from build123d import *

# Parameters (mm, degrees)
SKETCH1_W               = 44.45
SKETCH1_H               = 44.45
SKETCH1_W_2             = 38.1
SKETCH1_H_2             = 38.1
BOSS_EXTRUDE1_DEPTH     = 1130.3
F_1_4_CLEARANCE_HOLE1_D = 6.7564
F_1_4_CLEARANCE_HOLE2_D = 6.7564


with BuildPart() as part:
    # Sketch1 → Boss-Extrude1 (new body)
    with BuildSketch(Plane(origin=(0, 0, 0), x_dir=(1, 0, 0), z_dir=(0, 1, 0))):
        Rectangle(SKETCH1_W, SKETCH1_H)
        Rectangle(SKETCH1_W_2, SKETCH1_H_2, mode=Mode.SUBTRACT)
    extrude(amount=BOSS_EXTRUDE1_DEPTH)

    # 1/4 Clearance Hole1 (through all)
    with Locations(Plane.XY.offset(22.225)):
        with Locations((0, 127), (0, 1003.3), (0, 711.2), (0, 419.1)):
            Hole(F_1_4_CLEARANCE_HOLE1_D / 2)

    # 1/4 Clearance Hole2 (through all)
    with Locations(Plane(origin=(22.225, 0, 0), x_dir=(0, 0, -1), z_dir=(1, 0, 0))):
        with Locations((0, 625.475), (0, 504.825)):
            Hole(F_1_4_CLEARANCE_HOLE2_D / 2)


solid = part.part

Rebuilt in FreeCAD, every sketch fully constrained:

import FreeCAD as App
import Part
import Sketcher
from FreeCAD import Vector
Q = App.Units.Quantity

doc = App.newDocument("Part")
body = doc.addObject("PartDesign::Body", "Body")

# Sketch on XZ plane
sketch1 = body.newObject("Sketcher::SketchObject", "Sketch")
sketch1.AttachmentSupport = (doc.getObject("XZ_Plane"), [""])
sketch1.MapMode = "FlatFace"
sketch1.addGeometry(Part.LineSegment(Vector(-22, -22, 0), Vector(-22, 22, 0)), False)
sketch1.addGeometry(Part.LineSegment(Vector(-22, 22, 0), Vector(22, 22, 0)), False)
sketch1.addGeometry(Part.LineSegment(Vector(22, 22, 0), Vector(22, -22, 0)), False)
sketch1.addGeometry(Part.LineSegment(Vector(22, -22, 0), Vector(-22, -22, 0)), False)
sketch1.addGeometry(Part.LineSegment(Vector(19, 19, 0), Vector(-19, 19, 0)), False)
sketch1.addGeometry(Part.LineSegment(Vector(-19, 19, 0), Vector(-19, -19, 0)), False)
sketch1.addGeometry(Part.LineSegment(Vector(-19, -19, 0), Vector(19, -19, 0)), False)
sketch1.addGeometry(Part.LineSegment(Vector(19, -19, 0), Vector(19, 19, 0)), False)
sketch1.addConstraint(Sketcher.Constraint("Coincident", 0, 2, 1, 1))
sketch1.addConstraint(Sketcher.Constraint("Coincident", 1, 2, 2, 1))
sketch1.addConstraint(Sketcher.Constraint("Coincident", 2, 2, 3, 1))
sketch1.addConstraint(Sketcher.Constraint("Coincident", 3, 2, 0, 1))
sketch1.addConstraint(Sketcher.Constraint("Coincident", 4, 2, 5, 1))
sketch1.addConstraint(Sketcher.Constraint("Coincident", 5, 2, 6, 1))
sketch1.addConstraint(Sketcher.Constraint("Coincident", 6, 2, 7, 1))
sketch1.addConstraint(Sketcher.Constraint("Coincident", 7, 2, 4, 1))
sketch1.addConstraint(Sketcher.Constraint("Vertical", 0))
sketch1.addConstraint(Sketcher.Constraint("Horizontal", 1))
sketch1.addConstraint(Sketcher.Constraint("Vertical", 2))
sketch1.addConstraint(Sketcher.Constraint("Horizontal", 3))
sketch1.addConstraint(Sketcher.Constraint("Horizontal", 4))
sketch1.addConstraint(Sketcher.Constraint("Vertical", 5))
sketch1.addConstraint(Sketcher.Constraint("Horizontal", 6))
sketch1.addConstraint(Sketcher.Constraint("Vertical", 7))
sketch1.addConstraint(Sketcher.Constraint("Symmetric", 0, 2, 2, 2, -1, 1))
sketch1.addConstraint(Sketcher.Constraint("Symmetric", 4, 2, 6, 2, -1, 1))
sketch1.addConstraint(Sketcher.Constraint("Equal", 3, 0))
sketch1.addConstraint(Sketcher.Constraint("Equal", 6, 5))
sketch1.addConstraint(Sketcher.Constraint("DistanceX", 4, 2, 4, 1, Q("1.5 in")))
sketch1.addConstraint(Sketcher.Constraint("DistanceX", 1, 1, 1, 2, Q("1.75 in")))
pad1 = body.newObject("PartDesign::Pad", "Pad")
pad1.Profile = sketch1
pad1.Length = Q("44.5 in")
pad1.Reversed = True

# Sketch on XY plane
sketch2 = body.newObject("Sketcher::SketchObject", "Sketch001")
sketch2.AttachmentSupport = (doc.getObject("XY_Plane"), [""])
sketch2.MapMode = "FlatFace"
sketch2.AttachmentOffset = App.Placement(Vector(0, 0, 0.875 * 25.4), App.Rotation())
sketch2.addGeometry(Part.Circle(Vector(0, 127, 0), Vector(0, 0, 1), 3.4), False)
sketch2.addGeometry(Part.Circle(Vector(0, 1003.3, 0), Vector(0, 0, 1), 3.4), False)
sketch2.addGeometry(Part.Circle(Vector(0, 711.2, 0), Vector(0, 0, 1), 3.4), False)
sketch2.addGeometry(Part.Circle(Vector(0, 419.1, 0), Vector(0, 0, 1), 3.4), False)
sketch2.addConstraint(Sketcher.Constraint("Equal", 0, 1))
sketch2.addConstraint(Sketcher.Constraint("Equal", 1, 2))
sketch2.addConstraint(Sketcher.Constraint("Equal", 2, 3))
sketch2.addConstraint(Sketcher.Constraint("PointOnObject", 0, 3, -2))
sketch2.addConstraint(Sketcher.Constraint("PointOnObject", 1, 3, -2))
sketch2.addConstraint(Sketcher.Constraint("PointOnObject", 2, 3, -2))
sketch2.addConstraint(Sketcher.Constraint("PointOnObject", 3, 3, -2))
sketch2.addConstraint(Sketcher.Constraint("Diameter", 0, Q("0.266 in")))
sketch2.addConstraint(Sketcher.Constraint("DistanceY", -1, 1, 0, 3, Q("5 in")))
sketch2.addConstraint(Sketcher.Constraint("DistanceY", -1, 1, 2, 3, Q("28 in")))
sketch2.addConstraint(Sketcher.Constraint("DistanceY", 3, 3, 1, 3, Q("23 in")))
sketch2.addConstraint(Sketcher.Constraint("DistanceY", -1, 1, 1, 3, Q("39.5 in")))
doc.recompute()
hole = body.newObject("PartDesign::Hole", "Hole")
hole.Profile = sketch2
hole.ThreadType = "None"
hole.Diameter = Q("0.266 in")
hole.DepthType = "ThroughAll"

# Sketch on YZ plane
sketch3 = body.newObject("Sketcher::SketchObject", "Sketch002")
sketch3.AttachmentSupport = (doc.getObject("YZ_Plane"), [""])
sketch3.MapMode = "FlatFace"
sketch3.AttachmentOffset = App.Placement(Vector(0, 0, 0.875 * 25.4), App.Rotation())
sketch3.addGeometry(Part.Circle(Vector(625.5, 0, 0), Vector(0, 0, 1), 3.4), False)
sketch3.addGeometry(Part.Circle(Vector(504.8, 0, 0), Vector(0, 0, 1), 3.4), False)
sketch3.addConstraint(Sketcher.Constraint("Equal", 0, 1))
sketch3.addConstraint(Sketcher.Constraint("PointOnObject", 0, 3, -1))
sketch3.addConstraint(Sketcher.Constraint("PointOnObject", 1, 3, -1))
sketch3.addConstraint(Sketcher.Constraint("Diameter", 0, Q("0.266 in")))
sketch3.addConstraint(Sketcher.Constraint("DistanceX", 1, 3, 0, 3, Q("4.75 in")))
sketch3.addConstraint(Sketcher.Constraint("DistanceX", -1, 1, 0, 3, Q("24.625 in")))
doc.recompute()
hole2 = body.newObject("PartDesign::Hole", "Hole001")
hole2.Profile = sketch3
hole2.ThreadType = "None"
hole2.Diameter = Q("0.266 in")
hole2.DepthType = "ThroughAll"

doc.recompute()
